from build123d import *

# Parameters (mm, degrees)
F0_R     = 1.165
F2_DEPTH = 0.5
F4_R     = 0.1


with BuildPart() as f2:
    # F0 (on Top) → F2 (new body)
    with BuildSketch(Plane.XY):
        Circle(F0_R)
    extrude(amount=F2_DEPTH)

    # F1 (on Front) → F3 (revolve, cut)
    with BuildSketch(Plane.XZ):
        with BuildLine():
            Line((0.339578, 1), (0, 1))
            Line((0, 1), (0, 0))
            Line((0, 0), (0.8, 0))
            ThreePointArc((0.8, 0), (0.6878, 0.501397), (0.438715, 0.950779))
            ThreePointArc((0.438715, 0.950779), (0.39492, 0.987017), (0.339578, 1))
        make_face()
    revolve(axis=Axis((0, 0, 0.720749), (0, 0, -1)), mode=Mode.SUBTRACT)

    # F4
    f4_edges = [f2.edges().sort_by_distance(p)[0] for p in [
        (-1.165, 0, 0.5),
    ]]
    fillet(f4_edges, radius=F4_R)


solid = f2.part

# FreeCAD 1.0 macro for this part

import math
import FreeCAD as App
import Part
import Sketcher
from FreeCAD import Vector
Q = App.Units.Quantity


def edges_at(feature, points):
    """Names of the edges that pass closest to the given points."""
    edges = feature.Shape.Edges
    near = lambda p: min(range(len(edges)), key=lambda i: edges[i].distToShape(Part.Vertex(*p))[0])
    return sorted({f"Edge{near(p) + 1}" for p in points})

doc = App.newDocument("Part")
params = doc.addObject("Spreadsheet::Sheet", "Params")
for row, (alias, value) in enumerate([
    ("sketch1_diameter", "2.33 mm"),
    ("pad1_length", "0.5 mm"),
    ("sketch2_height", "1 mm"),
    ("sketch2_width", "0.8 mm"),
    ("groove_angle", "360 deg"),
    ("fillet_radius", "0.1 mm"),
], start=1):
    params.set(f"A{row}", alias)
    params.set(f"B{row}", "=" + value)
    params.setAlias(f"B{row}", alias)

body = doc.addObject("PartDesign::Body", "Body")

sketch1 = doc.addObject("Sketcher::SketchObject", "Sketch")
body.addObject(sketch1)
sketch1.AttachmentSupport = (doc.XY_Plane, [""])
sketch1.MapMode = "FlatFace"
sketch1.addGeometry(Part.Circle(Vector(0, 0, 0), Vector(0, 0, 1), 1.165), False)
sketch1.addConstraint(Sketcher.Constraint("Coincident", 0, 3, -1, 1))
sketch1.addConstraint(Sketcher.Constraint("Diameter", 0, Q("2.33 mm")))
sketch1.setExpression("Constraints[1]", "Params.sketch1_diameter")
pad1 = doc.addObject("PartDesign::Pad", "Pad")
body.addObject(pad1)
pad1.Profile = sketch1
pad1.setExpression("Length", "Params.pad1_length")

sketch2 = doc.addObject("Sketcher::SketchObject", "Sketch001")
body.addObject(sketch2)
sketch2.AttachmentSupport = (doc.XZ_Plane, [""])
sketch2.MapMode = "FlatFace"
sketch2.addGeometry(Part.LineSegment(Vector(0.339578, 1, 0), Vector(0, 1, 0)), False)
sketch2.addGeometry(Part.LineSegment(Vector(0, 1, 0), Vector(0, 0, 0)), False)
sketch2.addGeometry(Part.LineSegment(Vector(0, 0, 0), Vector(0.8, 0, 0)), False)
sketch2.addGeometry(Part.ArcOfCircle(Part.Circle(Vector(-0.997406, -0.138962, 0), Vector(0, 0, 1), 1.80277), math.radians(4.420882), math.radians(37.19154)), False)
sketch2.addGeometry(Part.ArcOfCircle(Part.Circle(Vector(0.339576, 0.875549, 0), Vector(0, 0, 1), 0.124451), math.radians(37.192522), math.radians(89.999163)), False)
sketch2.addConstraint(Sketcher.Constraint("Coincident", 0, 2, 1, 1))
sketch2.addConstraint(Sketcher.Constraint("Coincident", 1, 2, 2, 1))
sketch2.addConstraint(Sketcher.Constraint("Coincident", 2, 2, 3, 1))
sketch2.addConstraint(Sketcher.Constraint("Coincident", 3, 2, 4, 1))
sketch2.addConstraint(Sketcher.Constraint("Coincident", 4, 2, 0, 1))
sketch2.addConstraint(Sketcher.Constraint("Horizontal", 0))
sketch2.addConstraint(Sketcher.Constraint("Vertical", 1))
sketch2.addConstraint(Sketcher.Constraint("Horizontal", 2))
sketch2.addConstraint(Sketcher.Constraint("Coincident", 1, 2, -1, 1))
sketch2.addConstraint(Sketcher.Constraint("DistanceY", 1, 2, 1, 1, Q("1 mm")))
sketch2.addConstraint(Sketcher.Constraint("DistanceX", 2, 1, 2, 2, Q("0.8 mm")))
sketch2.addConstraint(Sketcher.Constraint("Radius", 3, Q("1.80277 mm")))
sketch2.addConstraint(Sketcher.Constraint("Radius", 4, Q("0.124451 mm")))
sketch2.addConstraint(Sketcher.Constraint("DistanceX", 0, 2, 0, 1, Q("0.339578 mm")))
sketch2.addConstraint(Sketcher.Constraint("DistanceY", 3, 3, -1, 1, Q("0.138962 mm")))
sketch2.addConstraint(Sketcher.Constraint("DistanceY", -1, 1, 3, 2, Q("0.950779 mm")))
sketch2.setExpression("Constraints[9]", "Params.sketch2_height")
sketch2.setExpression("Constraints[10]", "Params.sketch2_width")
groove = doc.addObject("PartDesign::Groove", "Groove")
body.addObject(groove)
groove.Profile = sketch2
groove.ReferenceAxis = (sketch2, ["V_Axis"])
groove.setExpression("Angle", "Params.groove_angle")
doc.recompute()

fillet = doc.addObject("PartDesign::Fillet", "Fillet")
body.addObject(fillet)
fillet.Base = (groove, edges_at(groove, [(-1.165, 0, 0.5)]))
fillet.setExpression("Radius", "Params.fillet_radius")

doc.recompute()
